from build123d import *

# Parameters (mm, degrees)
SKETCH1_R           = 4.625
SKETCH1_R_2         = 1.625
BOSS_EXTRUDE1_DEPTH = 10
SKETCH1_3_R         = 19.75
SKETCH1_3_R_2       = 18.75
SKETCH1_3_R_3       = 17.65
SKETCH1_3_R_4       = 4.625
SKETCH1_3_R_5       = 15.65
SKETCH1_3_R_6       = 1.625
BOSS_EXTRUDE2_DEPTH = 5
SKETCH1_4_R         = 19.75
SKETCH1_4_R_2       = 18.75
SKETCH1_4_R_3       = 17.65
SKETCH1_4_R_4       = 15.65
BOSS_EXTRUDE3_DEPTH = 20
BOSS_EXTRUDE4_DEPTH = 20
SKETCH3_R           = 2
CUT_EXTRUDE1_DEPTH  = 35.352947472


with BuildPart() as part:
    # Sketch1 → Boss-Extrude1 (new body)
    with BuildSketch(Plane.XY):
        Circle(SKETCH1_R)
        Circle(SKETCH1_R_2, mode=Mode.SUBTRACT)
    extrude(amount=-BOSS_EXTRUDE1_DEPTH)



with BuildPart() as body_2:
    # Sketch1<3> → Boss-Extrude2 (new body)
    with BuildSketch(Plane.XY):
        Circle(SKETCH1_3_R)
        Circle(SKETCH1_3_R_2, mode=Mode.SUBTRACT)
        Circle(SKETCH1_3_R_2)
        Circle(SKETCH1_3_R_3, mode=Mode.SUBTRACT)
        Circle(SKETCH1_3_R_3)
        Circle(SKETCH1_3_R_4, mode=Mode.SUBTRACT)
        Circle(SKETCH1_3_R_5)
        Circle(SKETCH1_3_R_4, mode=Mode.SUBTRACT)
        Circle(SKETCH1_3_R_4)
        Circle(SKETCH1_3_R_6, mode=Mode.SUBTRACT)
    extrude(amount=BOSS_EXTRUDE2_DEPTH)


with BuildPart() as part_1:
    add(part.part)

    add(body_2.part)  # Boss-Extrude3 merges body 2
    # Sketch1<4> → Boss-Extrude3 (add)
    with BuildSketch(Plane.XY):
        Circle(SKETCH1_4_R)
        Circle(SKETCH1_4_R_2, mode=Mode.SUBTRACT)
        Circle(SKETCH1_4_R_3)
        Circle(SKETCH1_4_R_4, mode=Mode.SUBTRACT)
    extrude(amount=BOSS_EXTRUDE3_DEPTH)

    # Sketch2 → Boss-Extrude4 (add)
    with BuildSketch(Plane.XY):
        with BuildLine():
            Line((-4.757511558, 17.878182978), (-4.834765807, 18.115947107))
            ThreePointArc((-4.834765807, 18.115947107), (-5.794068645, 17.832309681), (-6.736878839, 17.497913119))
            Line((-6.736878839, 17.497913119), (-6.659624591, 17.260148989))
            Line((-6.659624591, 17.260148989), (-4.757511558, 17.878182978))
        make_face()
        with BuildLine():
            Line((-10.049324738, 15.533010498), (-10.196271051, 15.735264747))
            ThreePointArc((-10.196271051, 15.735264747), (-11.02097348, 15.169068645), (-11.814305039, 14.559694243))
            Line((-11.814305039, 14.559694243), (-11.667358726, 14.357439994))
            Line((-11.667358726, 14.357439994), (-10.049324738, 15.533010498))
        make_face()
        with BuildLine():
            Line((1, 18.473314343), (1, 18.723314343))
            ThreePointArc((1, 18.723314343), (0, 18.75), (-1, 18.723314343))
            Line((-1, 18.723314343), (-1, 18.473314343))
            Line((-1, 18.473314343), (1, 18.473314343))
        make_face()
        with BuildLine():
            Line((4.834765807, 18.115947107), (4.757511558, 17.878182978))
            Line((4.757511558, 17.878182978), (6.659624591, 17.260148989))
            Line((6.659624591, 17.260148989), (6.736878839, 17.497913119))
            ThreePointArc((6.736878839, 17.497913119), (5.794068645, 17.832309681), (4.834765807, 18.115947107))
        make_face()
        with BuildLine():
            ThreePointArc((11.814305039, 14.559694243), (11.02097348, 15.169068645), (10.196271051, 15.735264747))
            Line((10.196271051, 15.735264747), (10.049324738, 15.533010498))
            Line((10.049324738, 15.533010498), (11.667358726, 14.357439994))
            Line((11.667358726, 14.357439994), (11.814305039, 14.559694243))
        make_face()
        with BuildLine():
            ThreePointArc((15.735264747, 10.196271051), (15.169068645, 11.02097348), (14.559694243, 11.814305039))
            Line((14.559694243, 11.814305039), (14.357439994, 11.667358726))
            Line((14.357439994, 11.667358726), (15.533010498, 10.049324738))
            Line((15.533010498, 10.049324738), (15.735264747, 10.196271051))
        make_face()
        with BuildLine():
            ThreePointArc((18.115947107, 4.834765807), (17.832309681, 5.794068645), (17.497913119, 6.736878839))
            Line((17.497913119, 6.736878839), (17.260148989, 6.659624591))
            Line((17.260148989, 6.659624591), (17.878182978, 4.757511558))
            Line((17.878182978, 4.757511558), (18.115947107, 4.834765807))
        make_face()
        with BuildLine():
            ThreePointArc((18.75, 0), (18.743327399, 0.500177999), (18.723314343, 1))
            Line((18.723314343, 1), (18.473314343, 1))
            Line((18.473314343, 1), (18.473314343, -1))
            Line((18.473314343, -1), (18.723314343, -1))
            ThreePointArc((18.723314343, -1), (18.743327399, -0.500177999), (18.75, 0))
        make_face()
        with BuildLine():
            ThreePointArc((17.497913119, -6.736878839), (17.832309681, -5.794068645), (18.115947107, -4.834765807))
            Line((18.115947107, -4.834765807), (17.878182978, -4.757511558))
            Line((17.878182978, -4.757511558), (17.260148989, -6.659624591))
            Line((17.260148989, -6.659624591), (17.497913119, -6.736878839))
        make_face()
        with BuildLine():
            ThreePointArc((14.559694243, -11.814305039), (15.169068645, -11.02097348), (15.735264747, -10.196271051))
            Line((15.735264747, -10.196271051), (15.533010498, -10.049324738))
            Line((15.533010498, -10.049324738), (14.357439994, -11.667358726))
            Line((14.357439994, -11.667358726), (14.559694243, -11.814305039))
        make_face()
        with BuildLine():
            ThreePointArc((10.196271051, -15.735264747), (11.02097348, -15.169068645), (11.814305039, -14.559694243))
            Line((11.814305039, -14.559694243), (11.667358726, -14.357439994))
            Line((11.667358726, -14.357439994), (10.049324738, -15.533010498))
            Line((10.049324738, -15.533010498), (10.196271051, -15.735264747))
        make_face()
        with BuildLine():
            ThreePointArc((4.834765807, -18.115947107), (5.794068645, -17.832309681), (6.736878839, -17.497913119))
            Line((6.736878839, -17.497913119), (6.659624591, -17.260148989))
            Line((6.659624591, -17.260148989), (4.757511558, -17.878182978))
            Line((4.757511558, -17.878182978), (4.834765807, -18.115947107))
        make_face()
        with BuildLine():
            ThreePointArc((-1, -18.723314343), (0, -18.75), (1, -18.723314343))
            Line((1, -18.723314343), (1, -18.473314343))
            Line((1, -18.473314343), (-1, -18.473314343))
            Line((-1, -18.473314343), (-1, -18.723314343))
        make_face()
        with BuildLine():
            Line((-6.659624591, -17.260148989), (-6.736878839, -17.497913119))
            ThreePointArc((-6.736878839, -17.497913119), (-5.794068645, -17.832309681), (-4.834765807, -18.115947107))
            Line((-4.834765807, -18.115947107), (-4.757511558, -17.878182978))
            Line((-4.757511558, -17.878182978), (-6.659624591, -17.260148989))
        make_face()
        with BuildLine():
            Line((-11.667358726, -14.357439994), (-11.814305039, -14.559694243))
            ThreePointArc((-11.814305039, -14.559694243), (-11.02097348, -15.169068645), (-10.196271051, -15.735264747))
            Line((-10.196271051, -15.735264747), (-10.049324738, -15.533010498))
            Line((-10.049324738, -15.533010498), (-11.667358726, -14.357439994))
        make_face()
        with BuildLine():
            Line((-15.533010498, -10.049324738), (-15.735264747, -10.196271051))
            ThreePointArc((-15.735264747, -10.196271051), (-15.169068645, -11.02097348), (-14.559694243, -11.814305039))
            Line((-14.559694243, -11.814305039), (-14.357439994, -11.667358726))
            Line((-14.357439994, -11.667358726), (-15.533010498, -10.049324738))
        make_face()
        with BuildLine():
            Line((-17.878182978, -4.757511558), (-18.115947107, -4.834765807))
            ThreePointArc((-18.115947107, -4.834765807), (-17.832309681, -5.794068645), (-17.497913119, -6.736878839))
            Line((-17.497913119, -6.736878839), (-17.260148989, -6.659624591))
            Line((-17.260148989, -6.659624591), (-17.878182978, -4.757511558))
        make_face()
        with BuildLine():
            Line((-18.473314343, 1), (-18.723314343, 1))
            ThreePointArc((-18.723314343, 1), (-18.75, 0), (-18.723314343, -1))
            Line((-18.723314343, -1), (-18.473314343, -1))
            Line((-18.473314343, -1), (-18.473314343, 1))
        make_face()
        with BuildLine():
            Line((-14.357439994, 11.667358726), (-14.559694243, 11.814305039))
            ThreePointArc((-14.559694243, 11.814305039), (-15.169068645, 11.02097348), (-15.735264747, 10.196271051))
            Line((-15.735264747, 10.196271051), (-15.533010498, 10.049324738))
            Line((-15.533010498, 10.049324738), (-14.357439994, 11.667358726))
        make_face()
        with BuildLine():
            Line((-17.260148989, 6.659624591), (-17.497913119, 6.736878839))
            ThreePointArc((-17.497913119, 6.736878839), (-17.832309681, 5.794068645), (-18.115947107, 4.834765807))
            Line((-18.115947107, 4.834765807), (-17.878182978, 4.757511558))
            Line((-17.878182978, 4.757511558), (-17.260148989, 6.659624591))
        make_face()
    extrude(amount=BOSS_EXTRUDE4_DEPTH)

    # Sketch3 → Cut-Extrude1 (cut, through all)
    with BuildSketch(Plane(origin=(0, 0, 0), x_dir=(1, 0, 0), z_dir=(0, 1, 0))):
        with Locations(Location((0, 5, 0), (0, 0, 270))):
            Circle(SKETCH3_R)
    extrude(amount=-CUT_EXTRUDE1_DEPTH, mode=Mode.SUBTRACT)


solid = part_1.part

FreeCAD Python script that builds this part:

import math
import FreeCAD as App
import Part
import Sketcher
Q = App.Units.Quantity

doc = App.newDocument("Part")
body = doc.addObject("PartDesign::Body", "Body")

# Sketch on XY plane
sketch1 = doc.addObject("Sketcher::SketchObject", "Sketch")
body.addObject(sketch1)
sketch1.AttachmentSupport = (doc.XY_Plane, [""])
sketch1.MapMode = "FlatFace"
sketch1.addGeometry(Part.Circle(App.Vector(0, 0, 0), App.Vector(0, 0, 1), 4.625), False)
sketch1.addGeometry(Part.Circle(App.Vector(0, 0, 0), App.Vector(0, 0, 1), 1.625), False)
sketch1.addConstraint(Sketcher.Constraint("Coincident", 0, 3, -1, 1))
sketch1.addConstraint(Sketcher.Constraint("Coincident", 1, 3, -1, 1))
sketch1.addConstraint(Sketcher.Constraint("Diameter", 0, Q("9.25 mm")))
sketch1.addConstraint(Sketcher.Constraint("Diameter", 1, Q("3.25 mm")))
pad1 = doc.addObject("PartDesign::Pad", "Pad")
body.addObject(pad1)
pad1.Profile = sketch1
pad1.Length = 10
pad1.Reversed = True
body2 = doc.addObject("PartDesign::Body", "Body001")

# Sketch on XY plane
sketch2 = doc.addObject("Sketcher::SketchObject", "Sketch001")
body2.addObject(sketch2)
sketch2.AttachmentSupport = (doc.getObject("XY_Plane001"), [""])
sketch2.MapMode = "FlatFace"
sketch2.addGeometry(Part.Circle(App.Vector(0, 0, 0), App.Vector(0, 0, 1), 19.75), False)
sketch2.addGeometry(Part.Circle(App.Vector(0, 0, 0), App.Vector(0, 0, 1), 1.625), False)
sketch2.addConstraint(Sketcher.Constraint("Coincident", 0, 3, -1, 1))
sketch2.addConstraint(Sketcher.Constraint("Coincident", 1, 3, -1, 1))
sketch2.addConstraint(Sketcher.Constraint("Diameter", 0, Q("39.5 mm")))
sketch2.addConstraint(Sketcher.Constraint("Diameter", 1, Q("3.25 mm")))
pad2 = doc.addObject("PartDesign::Pad", "Pad001")
body2.addObject(pad2)
pad2.Profile = sketch2
pad2.Length = 5
doc.recompute()

boolean = doc.addObject("PartDesign::Boolean", "Boolean")
body.addObject(boolean)
boolean.Type = "Fuse"
boolean.addObjects([body2])

# Sketch on XY plane
sketch3 = doc.addObject("Sketcher::SketchObject", "Sketch002")
body.addObject(sketch3)
sketch3.AttachmentSupport = (doc.XY_Plane, [""])
sketch3.MapMode = "FlatFace"
sketch3.addGeometry(Part.Circle(App.Vector(0, 0, 0), App.Vector(0, 0, 1), 19.75), False)
sketch3.addGeometry(Part.Circle(App.Vector(0, 0, 0), App.Vector(0, 0, 1), 18.75), False)
sketch3.addGeometry(Part.Circle(App.Vector(0, 0, 0), App.Vector(0, 0, 1), 17.65), False)
sketch3.addGeometry(Part.Circle(App.Vector(0, 0, 0), App.Vector(0, 0, 1), 15.65), False)
sketch3.addConstraint(Sketcher.Constraint("Coincident", 0, 3, -1, 1))
sketch3.addConstraint(Sketcher.Constraint("Coincident", 1, 3, -1, 1))
sketch3.addConstraint(Sketcher.Constraint("Coincident", 2, 3, -1, 1))
sketch3.addConstraint(Sketcher.Constraint("Coincident", 3, 3, -1, 1))
sketch3.addConstraint(Sketcher.Constraint("Diameter", 0, Q("39.5 mm")))
sketch3.addConstraint(Sketcher.Constraint("Diameter", 1, Q("37.5 mm")))
sketch3.addConstraint(Sketcher.Constraint("Diameter", 2, Q("35.3 mm")))
sketch3.addConstraint(Sketcher.Constraint("Diameter", 3, Q("31.3 mm")))
pad3 = doc.addObject("PartDesign::Pad", "Pad002")
body.addObject(pad3)
pad3.Profile = sketch3
pad3.Length = 20

# Sketch on XY plane
sketch4 = doc.addObject("Sketcher::SketchObject", "Sketch003")
body.addObject(sketch4)
sketch4.AttachmentSupport = (doc.XY_Plane, [""])
sketch4.MapMode = "FlatFace"
sketch4.addGeometry(Part.LineSegment(App.Vector(-4.757512, 17.878183, 0), App.Vector(-4.834766, 18.115947, 0)), False)
sketch4.addGeometry(Part.ArcOfCircle(Part.Circle(App.Vector(0, 0, 0), App.Vector(0, 0, 1), 18.75), math.radians(104.942774), math.radians(111.057225)), False)
sketch4.addGeometry(Part.LineSegment(App.Vector(-6.736879, 17.497913, 0), App.Vector(-6.659625, 17.260149, 0)), False)
sketch4.addGeometry(Part.LineSegment(App.Vector(-6.659625, 17.260149, 0), App.Vector(-4.757512, 17.878183, 0)), False)
sketch4.addGeometry(Part.LineSegment(App.Vector(-10.049325, 15.53301, 0), App.Vector(-10.196271, 15.735265, 0)), False)
sketch4.addGeometry(Part.ArcOfCircle(Part.Circle(App.Vector(0, 0, 0), App.Vector(0, 0, 1), 18.75), math.radians(122.942775), math.radians(129.057225)), False)
sketch4.addGeometry(Part.LineSegment(App.Vector(-11.814305, 14.559694, 0), App.Vector(-11.667359, 14.35744, 0)), False)
sketch4.addGeometry(Part.LineSegment(App.Vector(-11.667359, 14.35744, 0), App.Vector(-10.049325, 15.53301, 0)), False)
sketch4.addGeometry(Part.LineSegment(App.Vector(1, 18.473314, 0), App.Vector(1, 18.723314, 0)), False)
sketch4.addGeometry(Part.ArcOfCircle(Part.Circle(App.Vector(0, 0, 0), App.Vector(0, 0, 1), 18.75), math.radians(86.942775), math.radians(93.057225)), False)
sketch4.addGeometry(Part.LineSegment(App.Vector(-1, 18.723314, 0), App.Vector(-1, 18.473314, 0)), False)
sketch4.addGeometry(Part.LineSegment(App.Vector(-1, 18.473314, 0), App.Vector(1, 18.473314, 0)), False)
sketch4.addGeometry(Part.LineSegment(App.Vector(4.834766, 18.115947, 0), App.Vector(4.757512, 17.878183, 0)), False)
sketch4.addGeometry(Part.LineSegment(App.Vector(4.757512, 17.878183, 0), App.Vector(6.659625, 17.260149, 0)), False)
sketch4.addGeometry(Part.LineSegment(App.Vector(6.659625, 17.260149, 0), App.Vector(6.736879, 17.497913, 0)), False)
sketch4.addGeometry(Part.ArcOfCircle(Part.Circle(App.Vector(0, 0, 0), App.Vector(0, 0, 1), 18.75), math.radians(68.942775), math.radians(75.057226)), False)
sketch4.addGeometry(Part.ArcOfCircle(Part.Circle(App.Vector(0, 0, 0), App.Vector(0, 0, 1), 18.75), math.radians(50.942775), math.radians(57.057225)), False)
sketch4.addGeometry(Part.LineSegment(App.Vector(10.196271, 15.735265, 0), App.Vector(10.049325, 15.53301, 0)), False)
sketch4.addGeometry(Part.LineSegment(App.Vector(10.049325, 15.53301, 0), App.Vector(11.667359, 14.35744, 0)), False)
sketch4.addGeometry(Part.LineSegment(App.Vector(11.667359, 14.35744, 0), App.Vector(11.814305, 14.559694, 0)), False)
sketch4.addGeometry(Part.ArcOfCircle(Part.Circle(App.Vector(0, 0, 0), App.Vector(0, 0, 1), 18.75), math.radians(32.942775), math.radians(39.057225)), False)
sketch4.addGeometry(Part.LineSegment(App.Vector(14.559694, 11.814305, 0), App.Vector(14.35744, 11.667359, 0)), False)
sketch4.addGeometry(Part.LineSegment(App.Vector(14.35744, 11.667359, 0), App.Vector(15.53301, 10.049325, 0)), False)
sketch4.addGeometry(Part.LineSegment(App.Vector(15.53301, 10.049325, 0), App.Vector(15.735265, 10.196271, 0)), False)
sketch4.addGeometry(Part.ArcOfCircle(Part.Circle(App.Vector(0, 0, 0), App.Vector(0, 0, 1), 18.75), math.radians(14.942774), math.radians(21.057225)), False)
sketch4.addGeometry(Part.LineSegment(App.Vector(17.497913, 6.736879, 0), App.Vector(17.260149, 6.659625, 0)), False)
sketch4.addGeometry(Part.LineSegment(App.Vector(17.260149, 6.659625, 0), App.Vector(17.878183, 4.757512, 0)), False)
sketch4.addGeometry(Part.LineSegment(App.Vector(17.878183, 4.757512, 0), App.Vector(18.115947, 4.834766, 0)), False)
sketch4.addGeometry(Part.ArcOfCircle(Part.Circle(App.Vector(0.000002, 0, 0), App.Vector(0, 0, 1), 18.749998), math.radians(0), math.radians(3.057226)), False)
sketch4.addGeometry(Part.LineSegment(App.Vector(18.723314, 1, 0), App.Vector(18.473314, 1, 0)), False)
sketch4.addGeometry(Part.LineSegment(App.Vector(18.473314, 1, 0), App.Vector(18.473314, -1, 0)), False)
sketch4.addGeometry(Part.LineSegment(App.Vector(18.473314, -1, 0), App.Vector(18.723314, -1, 0)), False)
sketch4.addGeometry(Part.ArcOfCircle(Part.Circle(App.Vector(0.000002, 0, 0), App.Vector(0, 0, 1), 18.749998), math.radians(-3.057226), math.radians(0)), False)
sketch4.addGeometry(Part.ArcOfCircle(Part.Circle(App.Vector(0, 0, 0), App.Vector(0, 0, 1), 18.75), math.radians(-21.057225), math.radians(-14.942774)), False)
sketch4.addGeometry(Part.LineSegment(App.Vector(18.115947, -4.834766, 0), App.Vector(17.878183, -4.757512, 0)), False)
sketch4.addGeometry(Part.LineSegment(App.Vector(17.878183, -4.757512, 0), App.Vector(17.260149, -6.659625, 0)), False)
sketch4.addGeometry(Part.LineSegment(App.Vector(17.260149, -6.659625, 0), App.Vector(17.497913, -6.736879, 0)), False)
sketch4.addGeometry(Part.ArcOfCircle(Part.Circle(App.Vector(0, 0, 0), App.Vector(0, 0, 1), 18.75), math.radians(-39.057225), math.radians(-32.942775)), False)
sketch4.addGeometry(Part.LineSegment(App.Vector(15.735265, -10.196271, 0), App.Vector(15.53301, -10.049325, 0)), False)
sketch4.addGeometry(Part.LineSegment(App.Vector(15.53301, -10.049325, 0), App.Vector(14.35744, -11.667359, 0)), False)
sketch4.addGeometry(Part.LineSegment(App.Vector(14.35744, -11.667359, 0), App.Vector(14.559694, -11.814305, 0)), False)
sketch4.addGeometry(Part.ArcOfCircle(Part.Circle(App.Vector(0, 0, 0), App.Vector(0, 0, 1), 18.75), math.radians(-57.057225), math.radians(-50.942775)), False)
sketch4.addGeometry(Part.LineSegment(App.Vector(11.814305, -14.559694, 0), App.Vector(11.667359, -14.35744, 0)), False)
sketch4.addGeometry(Part.LineSegment(App.Vector(11.667359, -14.35744, 0), App.Vector(10.049325, -15.53301, 0)), False)
sketch4.addGeometry(Part.LineSegment(App.Vector(10.049325, -15.53301, 0), App.Vector(10.196271, -15.735265, 0)), False)
sketch4.addGeometry(Part.ArcOfCircle(Part.Circle(App.Vector(0, 0, 0), App.Vector(0, 0, 1), 18.75), math.radians(-75.057226), math.radians(-68.942775)), False)
sketch4.addGeometry(Part.LineSegment(App.Vector(6.736879, -17.497913, 0), App.Vector(6.659625, -17.260149, 0)), False)
sketch4.addGeometry(Part.LineSegment(App.Vector(6.659625, -17.260149, 0), App.Vector(4.757512, -17.878183, 0)), False)
sketch4.addGeometry(Part.LineSegment(App.Vector(4.757512, -17.878183, 0), App.Vector(4.834766, -18.115947, 0)), False)
sketch4.addGeometry(Part.ArcOfCircle(Part.Circle(App.Vector(0, 0, 0), App.Vector(0, 0, 1), 18.75), math.radians(-93.057225), math.radians(-86.942775)), False)
sketch4.addGeometry(Part.LineSegment(App.Vector(1, -18.723314, 0), App.Vector(1, -18.473314, 0)), False)
sketch4.addGeometry(Part.LineSegment(App.Vector(1, -18.473314, 0), App.Vector(-1, -18.473314, 0)), False)
sketch4.addGeometry(Part.LineSegment(App.Vector(-1, -18.473314, 0), App.Vector(-1, -18.723314, 0)), False)
sketch4.addGeometry(Part.LineSegment(App.Vector(-6.659625, -17.260149, 0), App.Vector(-6.736879, -17.497913, 0)), False)
sketch4.addGeometry(Part.ArcOfCircle(Part.Circle(App.Vector(0, 0, 0), App.Vector(0, 0, 1), 18.75), math.radians(-111.057225), math.radians(-104.942774)), False)
sketch4.addGeometry(Part.LineSegment(App.Vector(-4.834766, -18.115947, 0), App.Vector(-4.757512, -17.878183, 0)), False)
sketch4.addGeometry(Part.LineSegment(App.Vector(-4.757512, -17.878183, 0), App.Vector(-6.659625, -17.260149, 0)), False)
sketch4.addGeometry(Part.LineSegment(App.Vector(-11.667359, -14.35744, 0), App.Vector(-11.814305, -14.559694, 0)), False)
sketch4.addGeometry(Part.ArcOfCircle(Part.Circle(App.Vector(0, 0, 0), App.Vector(0, 0, 1), 18.75), math.radians(-129.057225), math.radians(-122.942775)), False)
sketch4.addGeometry(Part.LineSegment(App.Vector(-10.196271, -15.735265, 0), App.Vector(-10.049325, -15.53301, 0)), False)
sketch4.addGeometry(Part.LineSegment(App.Vector(-10.049325, -15.53301, 0), App.Vector(-11.667359, -14.35744, 0)), False)
sketch4.addGeometry(Part.LineSegment(App.Vector(-15.53301, -10.049325, 0), App.Vector(-15.735265, -10.196271, 0)), False)
sketch4.addGeometry(Part.ArcOfCircle(Part.Circle(App.Vector(0, 0, 0), App.Vector(0, 0, 1), 18.75), math.radians(-147.057225), math.radians(-140.942775)), False)
sketch4.addGeometry(Part.LineSegment(App.Vector(-14.559694, -11.814305, 0), App.Vector(-14.35744, -11.667359, 0)), False)
sketch4.addGeometry(Part.LineSegment(App.Vector(-14.35744, -11.667359, 0), App.Vector(-15.53301, -10.049325, 0)), False)
sketch4.addGeometry(Part.LineSegment(App.Vector(-17.878183, -4.757512, 0), App.Vector(-18.115947, -4.834766, 0)), False)
sketch4.addGeometry(Part.ArcOfCircle(Part.Circle(App.Vector(0, 0, 0), App.Vector(0, 0, 1), 18.75), math.radians(-165.057226), math.radians(-158.942775)), False)
sketch4.addGeometry(Part.LineSegment(App.Vector(-17.497913, -6.736879, 0), App.Vector(-17.260149, -6.659625, 0)), False)
sketch4.addGeometry(Part.LineSegment(App.Vector(-17.260149, -6.659625, 0), App.Vector(-17.878183, -4.757512, 0)), False)
sketch4.addGeometry(Part.LineSegment(App.Vector(-18.473314, 1, 0), App.Vector(-18.723314, 1, 0)), False)
sketch4.addGeometry(Part.ArcOfCircle(Part.Circle(App.Vector(0, 0, 0), App.Vector(0, 0, 1), 18.75), math.radians(176.942775), math.radians(183.057225)), False)
sketch4.addGeometry(Part.LineSegment(App.Vector(-18.723314, -1, 0), App.Vector(-18.473314, -1, 0)), False)
sketch4.addGeometry(Part.LineSegment(App.Vector(-18.473314, -1, 0), App.Vector(-18.473314, 1, 0)), False)
sketch4.addGeometry(Part.LineSegment(App.Vector(-14.35744, 11.667359, 0), App.Vector(-14.559694, 11.814305, 0)), False)
sketch4.addGeometry(Part.ArcOfCircle(Part.Circle(App.Vector(0, 0, 0), App.Vector(0, 0, 1), 18.75), math.radians(140.942775), math.radians(147.057225)), False)
sketch4.addGeometry(Part.LineSegment(App.Vector(-15.735265, 10.196271, 0), App.Vector(-15.53301, 10.049325, 0)), False)
sketch4.addGeometry(Part.LineSegment(App.Vector(-15.53301, 10.049325, 0), App.Vector(-14.35744, 11.667359, 0)), False)
sketch4.addGeometry(Part.LineSegment(App.Vector(-17.260149, 6.659625, 0), App.Vector(-17.497913, 6.736879, 0)), False)
sketch4.addGeometry(Part.ArcOfCircle(Part.Circle(App.Vector(0, 0, 0), App.Vector(0, 0, 1), 18.75), math.radians(158.942775), math.radians(165.057226)), False)
sketch4.addGeometry(Part.LineSegment(App.Vector(-18.115947, 4.834766, 0), App.Vector(-17.878183, 4.757512, 0)), False)
sketch4.addGeometry(Part.LineSegment(App.Vector(-17.878183, 4.757512, 0), App.Vector(-17.260149, 6.659625, 0)), False)
sketch4.addConstraint(Sketcher.Constraint("Coincident", 0, 2, 1, 1))
sketch4.addConstraint(Sketcher.Constraint("Coincident", 1, 2, 2, 1))
sketch4.addConstraint(Sketcher.Constraint("Coincident", 2, 2, 3, 1))
sketch4.addConstraint(Sketcher.Constraint("Coincident", 3, 2, 0, 1))
sketch4.addConstraint(Sketcher.Constraint("Coincident", 4, 2, 5, 1))
sketch4.addConstraint(Sketcher.Constraint("Coincident", 5, 2, 6, 1))
sketch4.addConstraint(Sketcher.Constraint("Coincident", 6, 2, 7, 1))
sketch4.addConstraint(Sketcher.Constraint("Coincident", 7, 2, 4, 1))
sketch4.addConstraint(Sketcher.Constraint("Coincident", 8, 2, 9, 1))
sketch4.addConstraint(Sketcher.Constraint("Coincident", 9, 2, 10, 1))
sketch4.addConstraint(Sketcher.Constraint("Coincident", 10, 2, 11, 1))
sketch4.addConstraint(Sketcher.Constraint("Coincident", 11, 2, 8, 1))
sketch4.addConstraint(Sketcher.Constraint("Coincident", 12, 2, 13, 1))
sketch4.addConstraint(Sketcher.Constraint("Coincident", 13, 2, 14, 1))
sketch4.addConstraint(Sketcher.Constraint("Coincident", 14, 2, 15, 1))
sketch4.addConstraint(Sketcher.Constraint("Coincident", 15, 2, 12, 1))
sketch4.addConstraint(Sketcher.Constraint("Coincident", 16, 2, 17, 1))
sketch4.addConstraint(Sketcher.Constraint("Coincident", 17, 2, 18, 1))
sketch4.addConstraint(Sketcher.Constraint("Coincident", 18, 2, 19, 1))
sketch4.addConstraint(Sketcher.Constraint("Coincident", 19, 2, 16, 1))
sketch4.addConstraint(Sketcher.Constraint("Coincident", 20, 2, 21, 1))
sketch4.addConstraint(Sketcher.Constraint("Coincident", 21, 2, 22, 1))
sketch4.addConstraint(Sketcher.Constraint("Coincident", 22, 2, 23, 1))
sketch4.addConstraint(Sketcher.Constraint("Coincident", 23, 2, 20, 1))
sketch4.addConstraint(Sketcher.Constraint("Coincident", 24, 2, 25, 1))
sketch4.addConstraint(Sketcher.Constraint("Coincident", 25, 2, 26, 1))
sketch4.addConstraint(Sketcher.Constraint("Coincident", 26, 2, 27, 1))
sketch4.addConstraint(Sketcher.Constraint("Coincident", 27, 2, 24, 1))
sketch4.addConstraint(Sketcher.Constraint("Coincident", 28, 2, 29, 1))
sketch4.addConstraint(Sketcher.Constraint("Coincident", 29, 2, 30, 1))
sketch4.addConstraint(Sketcher.Constraint("Coincident", 30, 2, 31, 1))
sketch4.addConstraint(Sketcher.Constraint("Coincident", 31, 2, 32, 1))
sketch4.addConstraint(Sketcher.Constraint("Tangent", 32, 2, 28, 1))
sketch4.addConstraint(Sketcher.Constraint("Coincident", 33, 2, 34, 1))
sketch4.addConstraint(Sketcher.Constraint("Coincident", 34, 2, 35, 1))
sketch4.addConstraint(Sketcher.Constraint("Coincident", 35, 2, 36, 1))
sketch4.addConstraint(Sketcher.Constraint("Coincident", 36, 2, 33, 1))
sketch4.addConstraint(Sketcher.Constraint("Coincident", 37, 2, 38, 1))
sketch4.addConstraint(Sketcher.Constraint("Coincident", 38, 2, 39, 1))
sketch4.addConstraint(Sketcher.Constraint("Coincident", 39, 2, 40, 1))
sketch4.addConstraint(Sketcher.Constraint("Coincident", 40, 2, 37, 1))
sketch4.addConstraint(Sketcher.Constraint("Coincident", 41, 2, 42, 1))
sketch4.addConstraint(Sketcher.Constraint("Coincident", 42, 2, 43, 1))
sketch4.addConstraint(Sketcher.Constraint("Coincident", 43, 2, 44, 1))
sketch4.addConstraint(Sketcher.Constraint("Coincident", 44, 2, 41, 1))
sketch4.addConstraint(Sketcher.Constraint("Coincident", 45, 2, 46, 1))
sketch4.addConstraint(Sketcher.Constraint("Coincident", 46, 2, 47, 1))
sketch4.addConstraint(Sketcher.Constraint("Coincident", 47, 2, 48, 1))
sketch4.addConstraint(Sketcher.Constraint("Coincident", 48, 2, 45, 1))
sketch4.addConstraint(Sketcher.Constraint("Coincident", 49, 2, 50, 1))
sketch4.addConstraint(Sketcher.Constraint("Coincident", 50, 2, 51, 1))
sketch4.addConstraint(Sketcher.Constraint("Coincident", 51, 2, 52, 1))
sketch4.addConstraint(Sketcher.Constraint("Coincident", 52, 2, 49, 1))
sketch4.addConstraint(Sketcher.Constraint("Coincident", 53, 2, 54, 1))
sketch4.addConstraint(Sketcher.Constraint("Coincident", 54, 2, 55, 1))
sketch4.addConstraint(Sketcher.Constraint("Coincident", 55, 2, 56, 1))
sketch4.addConstraint(Sketcher.Constraint("Coincident", 56, 2, 53, 1))
sketch4.addConstraint(Sketcher.Constraint("Coincident", 57, 2, 58, 1))
sketch4.addConstraint(Sketcher.Constraint("Coincident", 58, 2, 59, 1))
sketch4.addConstraint(Sketcher.Constraint("Coincident", 59, 2, 60, 1))
sketch4.addConstraint(Sketcher.Constraint("Coincident", 60, 2, 57, 1))
sketch4.addConstraint(Sketcher.Constraint("Coincident", 61, 2, 62, 1))
sketch4.addConstraint(Sketcher.Constraint("Coincident", 62, 2, 63, 1))
sketch4.addConstraint(Sketcher.Constraint("Coincident", 63, 2, 64, 1))
sketch4.addConstraint(Sketcher.Constraint("Coincident", 64, 2, 61, 1))
sketch4.addConstraint(Sketcher.Constraint("Coincident", 65, 2, 66, 1))
sketch4.addConstraint(Sketcher.Constraint("Coincident", 66, 2, 67, 1))
sketch4.addConstraint(Sketcher.Constraint("Coincident", 67, 2, 68, 1))
sketch4.addConstraint(Sketcher.Constraint("Coincident", 68, 2, 65, 1))
sketch4.addConstraint(Sketcher.Constraint("Coincident", 69, 2, 70, 1))
sketch4.addConstraint(Sketcher.Constraint("Coincident", 70, 2, 71, 1))
sketch4.addConstraint(Sketcher.Constraint("Coincident", 71, 2, 72, 1))
sketch4.addConstraint(Sketcher.Constraint("Coincident", 72, 2, 69, 1))
sketch4.addConstraint(Sketcher.Constraint("Coincident", 73, 2, 74, 1))
sketch4.addConstraint(Sketcher.Constraint("Coincident", 74, 2, 75, 1))
sketch4.addConstraint(Sketcher.Constraint("Coincident", 75, 2, 76, 1))
sketch4.addConstraint(Sketcher.Constraint("Coincident", 76, 2, 73, 1))
sketch4.addConstraint(Sketcher.Constraint("Coincident", 77, 2, 78, 1))
sketch4.addConstraint(Sketcher.Constraint("Coincident", 78, 2, 79, 1))
sketch4.addConstraint(Sketcher.Constraint("Coincident", 79, 2, 80, 1))
sketch4.addConstraint(Sketcher.Constraint("Coincident", 80, 2, 77, 1))
sketch4.addConstraint(Sketcher.Constraint("Vertical", 8))
sketch4.addConstraint(Sketcher.Constraint("Vertical", 10))
sketch4.addConstraint(Sketcher.Constraint("Horizontal", 11))
sketch4.addConstraint(Sketcher.Constraint("Horizontal", 29))
sketch4.addConstraint(Sketcher.Constraint("Vertical", 30))
sketch4.addConstraint(Sketcher.Constraint("Horizontal", 31))
sketch4.addConstraint(Sketcher.Constraint("Vertical", 50))
sketch4.addConstraint(Sketcher.Constraint("Horizontal", 51))
sketch4.addConstraint(Sketcher.Constraint("Vertical", 52))
sketch4.addConstraint(Sketcher.Constraint("Horizontal", 69))
sketch4.addConstraint(Sketcher.Constraint("Horizontal", 71))
sketch4.addConstraint(Sketcher.Constraint("Vertical", 72))
sketch4.addConstraint(Sketcher.Constraint("Coincident", 1, 3, -1, 1))
sketch4.addConstraint(Sketcher.Constraint("Coincident", 5, 3, -1, 1))
sketch4.addConstraint(Sketcher.Constraint("Coincident", 9, 3, -1, 1))
sketch4.addConstraint(Sketcher.Constraint("Coincident", 15, 3, -1, 1))
sketch4.addConstraint(Sketcher.Constraint("Coincident", 16, 3, -1, 1))
sketch4.addConstraint(Sketcher.Constraint("Coincident", 20, 3, -1, 1))
sketch4.addConstraint(Sketcher.Constraint("Coincident", 24, 3, -1, 1))
sketch4.addConstraint(Sketcher.Constraint("Coincident", 28, 3, -1, 1))
sketch4.addConstraint(Sketcher.Constraint("Coincident", 33, 3, -1, 1))
sketch4.addConstraint(Sketcher.Constraint("Coincident", 37, 3, -1, 1))
sketch4.addConstraint(Sketcher.Constraint("Coincident", 41, 3, -1, 1))
sketch4.addConstraint(Sketcher.Constraint("Coincident", 45, 3, -1, 1))
sketch4.addConstraint(Sketcher.Constraint("Coincident", 49, 3, -1, 1))
sketch4.addConstraint(Sketcher.Constraint("Coincident", 54, 3, -1, 1))
sketch4.addConstraint(Sketcher.Constraint("Coincident", 58, 3, -1, 1))
sketch4.addConstraint(Sketcher.Constraint("Coincident", 62, 3, -1, 1))
sketch4.addConstraint(Sketcher.Constraint("Coincident", 66, 3, -1, 1))
sketch4.addConstraint(Sketcher.Constraint("Coincident", 70, 3, -1, 1))
sketch4.addConstraint(Sketcher.Constraint("Coincident", 74, 3, -1, 1))
sketch4.addConstraint(Sketcher.Constraint("Coincident", 78, 3, -1, 1))
sketch4.addConstraint(Sketcher.Constraint("Equal", 1, 5))
sketch4.addConstraint(Sketcher.Constraint("Equal", 5, 9))
sketch4.addConstraint(Sketcher.Constraint("Equal", 9, 15))
sketch4.addConstraint(Sketcher.Constraint("Equal", 15, 16))
sketch4.addConstraint(Sketcher.Constraint("Equal", 16, 20))
sketch4.addConstraint(Sketcher.Constraint("Equal", 20, 24))
sketch4.addConstraint(Sketcher.Constraint("Equal", 24, 28))
sketch4.addConstraint(Sketcher.Constraint("Equal", 28, 32))
sketch4.addConstraint(Sketcher.Constraint("Equal", 32, 33))
sketch4.addConstraint(Sketcher.Constraint("Equal", 33, 37))
sketch4.addConstraint(Sketcher.Constraint("Equal", 37, 41))
sketch4.addConstraint(Sketcher.Constraint("Equal", 41, 45))
sketch4.addConstraint(Sketcher.Constraint("Equal", 45, 49))
sketch4.addConstraint(Sketcher.Constraint("Equal", 49, 54))
sketch4.addConstraint(Sketcher.Constraint("Equal", 54, 58))
sketch4.addConstraint(Sketcher.Constraint("Equal", 58, 62))
sketch4.addConstraint(Sketcher.Constraint("Equal", 62, 66))
sketch4.addConstraint(Sketcher.Constraint("Equal", 66, 70))
sketch4.addConstraint(Sketcher.Constraint("Equal", 70, 74))
sketch4.addConstraint(Sketcher.Constraint("Equal", 74, 78))
sketch4.addConstraint(Sketcher.Constraint("Symmetric", 6, 2, 42, 2, -1, 1))
sketch4.addConstraint(Sketcher.Constraint("Symmetric", 7, 2, 43, 2, -1, 1))
sketch4.addConstraint(Sketcher.Constraint("Symmetric", 2, 2, 46, 2, -1, 1))
sketch4.addConstraint(Sketcher.Constraint("Symmetric", 3, 2, 47, 2, -1, 1))
sketch4.addConstraint(Sketcher.Constraint("Symmetric", 10, 2, 50, 2, -1, 1))
sketch4.addConstraint(Sketcher.Constraint("Symmetric", 12, 2, 55, 2, -1, 1))
sketch4.addConstraint(Sketcher.Constraint("Symmetric", 13, 2, 56, 2, -1, 1))
sketch4.addConstraint(Sketcher.Constraint("Symmetric", 17, 2, 59, 2, -1, 1))
sketch4.addConstraint(Sketcher.Constraint("Symmetric", 18, 2, 60, 2, -1, 1))
sketch4.addConstraint(Sketcher.Constraint("Symmetric", 21, 2, 63, 2, -1, 1))
sketch4.addConstraint(Sketcher.Constraint("Symmetric", 22, 2, 64, 2, -1, 1))
sketch4.addConstraint(Sketcher.Constraint("Symmetric", 25, 2, 67, 2, -1, 1))
sketch4.addConstraint(Sketcher.Constraint("Symmetric", 26, 2, 68, 2, -1, 1))
sketch4.addConstraint(Sketcher.Constraint("Symmetric", 29, 2, 71, 2, -1, 1))
sketch4.addConstraint(Sketcher.Constraint("Symmetric", 38, 2, 75, 2, -1, 1))
sketch4.addConstraint(Sketcher.Constraint("Symmetric", 39, 2, 76, 2, -1, 1))
sketch4.addConstraint(Sketcher.Constraint("Symmetric", 34, 2, 79, 2, -1, 1))
sketch4.addConstraint(Sketcher.Constraint("Symmetric", 35, 2, 80, 2, -1, 1))
sketch4.addConstraint(Sketcher.Constraint("Symmetric", 3, 2, 12, 2, -2))
sketch4.addConstraint(Sketcher.Constraint("Symmetric", 2, 2, 13, 2, -2))
sketch4.addConstraint(Sketcher.Constraint("Symmetric", 7, 2, 17, 2, -2))
sketch4.addConstraint(Sketcher.Constraint("Symmetric", 6, 2, 18, 2, -2))
sketch4.addConstraint(Sketcher.Constraint("Symmetric", 39, 2, 63, 2, -2))
sketch4.addConstraint(Sketcher.Constraint("Symmetric", 38, 2, 64, 2, -2))
sketch4.addConstraint(Sketcher.Constraint("Symmetric", 35, 2, 67, 2, -2))
sketch4.addConstraint(Sketcher.Constraint("Symmetric", 34, 2, 68, 2, -2))
sketch4.addConstraint(Sketcher.Constraint("PointOnObject", 32, 2, -1))
sketch4.addConstraint(Sketcher.Constraint("Parallel", 0, 2))
sketch4.addConstraint(Sketcher.Constraint("Perpendicular", 2, 3))
sketch4.addConstraint(Sketcher.Constraint("Parallel", 4, 6))
sketch4.addConstraint(Sketcher.Constraint("Perpendicular", 6, 7))
sketch4.addConstraint(Sketcher.Constraint("Perpendicular", 12, 13))
sketch4.addConstraint(Sketcher.Constraint("Perpendicular", 13, 14))
sketch4.addConstraint(Sketcher.Constraint("Perpendicular", 17, 18))
sketch4.addConstraint(Sketcher.Constraint("Perpendicular", 18, 19))
sketch4.addConstraint(Sketcher.Constraint("Parallel", 7, 21))
sketch4.addConstraint(Sketcher.Constraint("Perpendicular", 21, 22))
sketch4.addConstraint(Sketcher.Constraint("Perpendicular", 22, 23))
sketch4.addConstraint(Sketcher.Constraint("Parallel", 3, 25))
sketch4.addConstraint(Sketcher.Constraint("Perpendicular", 25, 26))
sketch4.addConstraint(Sketcher.Constraint("Perpendicular", 26, 27))
sketch4.addConstraint(Sketcher.Constraint("Perpendicular", 14, 34))
sketch4.addConstraint(Sketcher.Constraint("Perpendicular", 35, 36))
sketch4.addConstraint(Sketcher.Constraint("Perpendicular", 19, 38))
sketch4.addConstraint(Sketcher.Constraint("Perpendicular", 39, 40))
sketch4.addConstraint(Sketcher.Constraint("Perpendicular", 23, 42))
sketch4.addConstraint(Sketcher.Constraint("Perpendicular", 43, 44))
sketch4.addConstraint(Sketcher.Constraint("Perpendicular", 27, 46))
sketch4.addConstraint(Sketcher.Constraint("Perpendicular", 47, 48))
sketch4.addConstraint(Sketcher.Constraint("Perpendicular", 36, 53))
sketch4.addConstraint(Sketcher.Constraint("Parallel", 53, 55))
sketch4.addConstraint(Sketcher.Constraint("Perpendicular", 40, 57))
sketch4.addConstraint(Sketcher.Constraint("Parallel", 57, 59))
sketch4.addConstraint(Sketcher.Constraint("Perpendicular", 44, 61))
sketch4.addConstraint(Sketcher.Constraint("Parallel", 61, 63))
sketch4.addConstraint(Sketcher.Constraint("Perpendicular", 48, 65))
sketch4.addConstraint(Sketcher.Constraint("Parallel", 65, 67))
sketch4.addConstraint(Sketcher.Constraint("Parallel", 60, 73))
sketch4.addConstraint(Sketcher.Constraint("Parallel", 73, 75))
sketch4.addConstraint(Sketcher.Constraint("Parallel", 56, 77))
sketch4.addConstraint(Sketcher.Constraint("Parallel", 77, 79))
sketch4.addConstraint(Sketcher.Constraint("Horizontal", 8, 2, 9, 2))
sketch4.addConstraint(Sketcher.Constraint("Horizontal", 49, 2, 52, 2))
sketch4.addConstraint(Sketcher.Constraint("Horizontal", 29, 2, 69, 2))
sketch4.addConstraint(Sketcher.Constraint("Horizontal", 31, 2, 70, 2))
sketch4.addConstraint(Sketcher.Constraint("Equal", 71, 8))
sketch4.addConstraint(Sketcher.Constraint("Equal", 51, 30))
sketch4.addConstraint(Sketcher.Constraint("Equal", 0, 2))
sketch4.addConstraint(Sketcher.Constraint("Equal", 2, 4))
sketch4.addConstraint(Sketcher.Constraint("Equal", 4, 6))
sketch4.addConstraint(Sketcher.Constraint("Equal", 3, 7))
sketch4.addConstraint(Sketcher.Constraint("Equal", 19, 21))
sketch4.addConstraint(Sketcher.Constraint("Equal", 18, 22))
sketch4.addConstraint(Sketcher.Constraint("Equal", 21, 23))
sketch4.addConstraint(Sketcher.Constraint("Equal", 23, 25))
sketch4.addConstraint(Sketcher.Constraint("Equal", 22, 26))
sketch4.addConstraint(Sketcher.Constraint("Equal", 25, 27))
sketch4.addConstraint(Sketcher.Constraint("DistanceX", 11, 1, 11, 2, Q("2 mm")))
sketch4.addConstraint(Sketcher.Constraint("Angle", 3, Q("18 deg")))
sketch4.addConstraint(Sketcher.Constraint("Angle", 7, Q("36 deg")))
sketch4.addConstraint(Sketcher.Constraint("Radius", 1, Q("18.75 mm")))
sketch4.addConstraint(Sketcher.Constraint("Distance", 3, Q("2 mm")))
sketch4.addConstraint(Sketcher.Constraint("DistanceX", 29, 2, 29, 1, Q("0.25 mm")))
sketch4.addConstraint(Sketcher.Constraint("Distance", 0, Q("0.25 mm")))
pad4 = doc.addObject("PartDesign::Pad", "Pad003")
body.addObject(pad4)
pad4.Profile = sketch4
pad4.Length = 20

# Sketch on XZ plane
sketch5 = doc.addObject("Sketcher::SketchObject", "Sketch004")
body.addObject(sketch5)
sketch5.AttachmentSupport = (doc.XZ_Plane, [""])
sketch5.MapMode = "FlatFace"
sketch5.addGeometry(Part.Circle(App.Vector(0, -5, 0), App.Vector(0, 0, 1), 2), False)
sketch5.addConstraint(Sketcher.Constraint("PointOnObject", 0, 3, -2))
sketch5.addConstraint(Sketcher.Constraint("Diameter", 0, Q("4 mm")))
sketch5.addConstraint(Sketcher.Constraint("DistanceY", 0, 3, -1, 1, Q("5 mm")))
pocket1 = doc.addObject("PartDesign::Pocket", "Pocket")
body.addObject(pocket1)
pocket1.Profile = sketch5
pocket1.Type = "ThroughAll"
pocket1.Reversed = True

doc.recompute()
